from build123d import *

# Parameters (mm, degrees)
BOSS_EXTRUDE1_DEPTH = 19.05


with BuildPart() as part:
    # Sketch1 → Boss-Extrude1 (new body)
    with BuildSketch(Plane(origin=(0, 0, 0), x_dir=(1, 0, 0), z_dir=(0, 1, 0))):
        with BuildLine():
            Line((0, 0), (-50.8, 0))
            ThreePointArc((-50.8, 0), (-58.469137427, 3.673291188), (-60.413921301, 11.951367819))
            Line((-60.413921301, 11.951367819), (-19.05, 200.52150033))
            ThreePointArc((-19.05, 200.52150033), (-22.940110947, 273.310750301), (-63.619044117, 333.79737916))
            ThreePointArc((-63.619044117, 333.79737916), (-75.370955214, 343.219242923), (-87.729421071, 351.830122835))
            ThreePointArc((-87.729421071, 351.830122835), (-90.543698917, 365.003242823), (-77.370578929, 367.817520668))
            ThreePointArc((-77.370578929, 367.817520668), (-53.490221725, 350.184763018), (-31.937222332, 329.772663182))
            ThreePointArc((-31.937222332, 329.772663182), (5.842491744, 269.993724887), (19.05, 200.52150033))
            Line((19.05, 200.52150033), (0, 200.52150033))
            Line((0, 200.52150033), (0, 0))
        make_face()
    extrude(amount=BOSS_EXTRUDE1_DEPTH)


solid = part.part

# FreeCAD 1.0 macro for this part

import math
import FreeCAD as App
import Part
import Sketcher
from FreeCAD import Vector
Q = App.Units.Quantity

doc = App.newDocument("Part")
body = doc.addObject("PartDesign::Body", "Body")

sketch1 = body.newObject("Sketcher::SketchObject", "Sketch")
sketch1.AttachmentSupport = (doc.getObject("XZ_Plane"), [""])
sketch1.MapMode = "FlatFace"
sketch1.addGeometry([
    Part.LineSegment(Vector(-51, 0, 0), Vector(0, 0, 0)),
    Part.LineSegment(Vector(0, 0, 0), Vector(0, -201, 0)),
    Part.LineSegment(Vector(0, -201, 0), Vector(19, -201, 0)),
    Part.ArcOfCircle(Part.Circle(Vector(-170, -201, 0), Vector(0, 0, 1), 189), math.radians(-43), math.radians(0)),
    Part.ArcOfCircle(Part.Circle(Vector(-210, -164, 0), Vector(0, 0, 1), 243), math.radians(-57.06), math.radians(-43.06)),
    Part.ArcOfCircle(Part.Circle(Vector(-83, -360, 0), Vector(0, 0, 1), 10), math.radians(123), math.radians(303)),
    Part.ArcOfCircle(Part.Circle(Vector(-210, -164, 0), Vector(0, 0, 1), 224), math.radians(-57.06), math.radians(-49.35)),
    Part.ArcOfCircle(Part.Circle(Vector(-153, -230, 0), Vector(0, 0, 1), 137), math.radians(-49), math.radians(12)),
    Part.LineSegment(Vector(-19, -201, 0), Vector(-60, -12, 0)),
    Part.ArcOfCircle(Part.Circle(Vector(-51, -10, 0), Vector(0, 0, 1), 10), math.radians(90), math.radians(192)),
], False)
sketch1.addConstraint([
    Sketcher.Constraint("Coincident", 0, 2, 1, 1),
    Sketcher.Constraint("Coincident", 1, 2, 2, 1),
    Sketcher.Constraint("Coincident", 2, 2, 3, 2),
    Sketcher.Constraint("Tangent", 3, 1, 4, 2),
    Sketcher.Constraint("Tangent", 4, 1, 5, 2),
    Sketcher.Constraint("Tangent", 5, 1, 6, 1),
    Sketcher.Constraint("Tangent", 6, 2, 7, 1),
    Sketcher.Constraint("Tangent", 7, 2, 8, 1),
    Sketcher.Constraint("Tangent", 8, 2, 9, 2),
    Sketcher.Constraint("Tangent", 9, 1, 0, 1),
    Sketcher.Constraint("Horizontal", 0),
    Sketcher.Constraint("Vertical", 1),
    Sketcher.Constraint("Horizontal", 2),
    Sketcher.Constraint("Coincident", 0, 2, -1, 1),
    Sketcher.Constraint("Coincident", 6, 3, 4, 3),
    Sketcher.Constraint("Symmetric", 2, 2, 7, 2, -2),
    Sketcher.Constraint("Horizontal", 3, 3, 1, 2),
    Sketcher.Constraint("DistanceX", 0, 1, 0, 2, Q("2 in")),
    Sketcher.Constraint("Radius", 5, Q("0.375 in")),
    Sketcher.Constraint("DistanceX", 4, 3, 5, 3, Q("5 in")),
    Sketcher.Constraint("DistanceX", 5, 3, 2, 2, Q("4 in")),
    Sketcher.Constraint("DistanceX", 2, 1, 2, 2, Q("0.75 in")),
    Sketcher.Constraint("Radius", 9, Q("0.3875 in")),
    Sketcher.Constraint("DistanceY", 1, 2, 1, 1, Q("200.5215 mm")),
    Sketcher.Constraint("Radius", 3, Q("189.317628 mm")),
    Sketcher.Constraint("Radius", 4, Q("243.079095 mm")),
])
pad1 = body.newObject("PartDesign::Pad", "Pad")
pad1.Profile = sketch1
pad1.Length = Q("0.75 in")
pad1.Reversed = True

doc.recompute()
